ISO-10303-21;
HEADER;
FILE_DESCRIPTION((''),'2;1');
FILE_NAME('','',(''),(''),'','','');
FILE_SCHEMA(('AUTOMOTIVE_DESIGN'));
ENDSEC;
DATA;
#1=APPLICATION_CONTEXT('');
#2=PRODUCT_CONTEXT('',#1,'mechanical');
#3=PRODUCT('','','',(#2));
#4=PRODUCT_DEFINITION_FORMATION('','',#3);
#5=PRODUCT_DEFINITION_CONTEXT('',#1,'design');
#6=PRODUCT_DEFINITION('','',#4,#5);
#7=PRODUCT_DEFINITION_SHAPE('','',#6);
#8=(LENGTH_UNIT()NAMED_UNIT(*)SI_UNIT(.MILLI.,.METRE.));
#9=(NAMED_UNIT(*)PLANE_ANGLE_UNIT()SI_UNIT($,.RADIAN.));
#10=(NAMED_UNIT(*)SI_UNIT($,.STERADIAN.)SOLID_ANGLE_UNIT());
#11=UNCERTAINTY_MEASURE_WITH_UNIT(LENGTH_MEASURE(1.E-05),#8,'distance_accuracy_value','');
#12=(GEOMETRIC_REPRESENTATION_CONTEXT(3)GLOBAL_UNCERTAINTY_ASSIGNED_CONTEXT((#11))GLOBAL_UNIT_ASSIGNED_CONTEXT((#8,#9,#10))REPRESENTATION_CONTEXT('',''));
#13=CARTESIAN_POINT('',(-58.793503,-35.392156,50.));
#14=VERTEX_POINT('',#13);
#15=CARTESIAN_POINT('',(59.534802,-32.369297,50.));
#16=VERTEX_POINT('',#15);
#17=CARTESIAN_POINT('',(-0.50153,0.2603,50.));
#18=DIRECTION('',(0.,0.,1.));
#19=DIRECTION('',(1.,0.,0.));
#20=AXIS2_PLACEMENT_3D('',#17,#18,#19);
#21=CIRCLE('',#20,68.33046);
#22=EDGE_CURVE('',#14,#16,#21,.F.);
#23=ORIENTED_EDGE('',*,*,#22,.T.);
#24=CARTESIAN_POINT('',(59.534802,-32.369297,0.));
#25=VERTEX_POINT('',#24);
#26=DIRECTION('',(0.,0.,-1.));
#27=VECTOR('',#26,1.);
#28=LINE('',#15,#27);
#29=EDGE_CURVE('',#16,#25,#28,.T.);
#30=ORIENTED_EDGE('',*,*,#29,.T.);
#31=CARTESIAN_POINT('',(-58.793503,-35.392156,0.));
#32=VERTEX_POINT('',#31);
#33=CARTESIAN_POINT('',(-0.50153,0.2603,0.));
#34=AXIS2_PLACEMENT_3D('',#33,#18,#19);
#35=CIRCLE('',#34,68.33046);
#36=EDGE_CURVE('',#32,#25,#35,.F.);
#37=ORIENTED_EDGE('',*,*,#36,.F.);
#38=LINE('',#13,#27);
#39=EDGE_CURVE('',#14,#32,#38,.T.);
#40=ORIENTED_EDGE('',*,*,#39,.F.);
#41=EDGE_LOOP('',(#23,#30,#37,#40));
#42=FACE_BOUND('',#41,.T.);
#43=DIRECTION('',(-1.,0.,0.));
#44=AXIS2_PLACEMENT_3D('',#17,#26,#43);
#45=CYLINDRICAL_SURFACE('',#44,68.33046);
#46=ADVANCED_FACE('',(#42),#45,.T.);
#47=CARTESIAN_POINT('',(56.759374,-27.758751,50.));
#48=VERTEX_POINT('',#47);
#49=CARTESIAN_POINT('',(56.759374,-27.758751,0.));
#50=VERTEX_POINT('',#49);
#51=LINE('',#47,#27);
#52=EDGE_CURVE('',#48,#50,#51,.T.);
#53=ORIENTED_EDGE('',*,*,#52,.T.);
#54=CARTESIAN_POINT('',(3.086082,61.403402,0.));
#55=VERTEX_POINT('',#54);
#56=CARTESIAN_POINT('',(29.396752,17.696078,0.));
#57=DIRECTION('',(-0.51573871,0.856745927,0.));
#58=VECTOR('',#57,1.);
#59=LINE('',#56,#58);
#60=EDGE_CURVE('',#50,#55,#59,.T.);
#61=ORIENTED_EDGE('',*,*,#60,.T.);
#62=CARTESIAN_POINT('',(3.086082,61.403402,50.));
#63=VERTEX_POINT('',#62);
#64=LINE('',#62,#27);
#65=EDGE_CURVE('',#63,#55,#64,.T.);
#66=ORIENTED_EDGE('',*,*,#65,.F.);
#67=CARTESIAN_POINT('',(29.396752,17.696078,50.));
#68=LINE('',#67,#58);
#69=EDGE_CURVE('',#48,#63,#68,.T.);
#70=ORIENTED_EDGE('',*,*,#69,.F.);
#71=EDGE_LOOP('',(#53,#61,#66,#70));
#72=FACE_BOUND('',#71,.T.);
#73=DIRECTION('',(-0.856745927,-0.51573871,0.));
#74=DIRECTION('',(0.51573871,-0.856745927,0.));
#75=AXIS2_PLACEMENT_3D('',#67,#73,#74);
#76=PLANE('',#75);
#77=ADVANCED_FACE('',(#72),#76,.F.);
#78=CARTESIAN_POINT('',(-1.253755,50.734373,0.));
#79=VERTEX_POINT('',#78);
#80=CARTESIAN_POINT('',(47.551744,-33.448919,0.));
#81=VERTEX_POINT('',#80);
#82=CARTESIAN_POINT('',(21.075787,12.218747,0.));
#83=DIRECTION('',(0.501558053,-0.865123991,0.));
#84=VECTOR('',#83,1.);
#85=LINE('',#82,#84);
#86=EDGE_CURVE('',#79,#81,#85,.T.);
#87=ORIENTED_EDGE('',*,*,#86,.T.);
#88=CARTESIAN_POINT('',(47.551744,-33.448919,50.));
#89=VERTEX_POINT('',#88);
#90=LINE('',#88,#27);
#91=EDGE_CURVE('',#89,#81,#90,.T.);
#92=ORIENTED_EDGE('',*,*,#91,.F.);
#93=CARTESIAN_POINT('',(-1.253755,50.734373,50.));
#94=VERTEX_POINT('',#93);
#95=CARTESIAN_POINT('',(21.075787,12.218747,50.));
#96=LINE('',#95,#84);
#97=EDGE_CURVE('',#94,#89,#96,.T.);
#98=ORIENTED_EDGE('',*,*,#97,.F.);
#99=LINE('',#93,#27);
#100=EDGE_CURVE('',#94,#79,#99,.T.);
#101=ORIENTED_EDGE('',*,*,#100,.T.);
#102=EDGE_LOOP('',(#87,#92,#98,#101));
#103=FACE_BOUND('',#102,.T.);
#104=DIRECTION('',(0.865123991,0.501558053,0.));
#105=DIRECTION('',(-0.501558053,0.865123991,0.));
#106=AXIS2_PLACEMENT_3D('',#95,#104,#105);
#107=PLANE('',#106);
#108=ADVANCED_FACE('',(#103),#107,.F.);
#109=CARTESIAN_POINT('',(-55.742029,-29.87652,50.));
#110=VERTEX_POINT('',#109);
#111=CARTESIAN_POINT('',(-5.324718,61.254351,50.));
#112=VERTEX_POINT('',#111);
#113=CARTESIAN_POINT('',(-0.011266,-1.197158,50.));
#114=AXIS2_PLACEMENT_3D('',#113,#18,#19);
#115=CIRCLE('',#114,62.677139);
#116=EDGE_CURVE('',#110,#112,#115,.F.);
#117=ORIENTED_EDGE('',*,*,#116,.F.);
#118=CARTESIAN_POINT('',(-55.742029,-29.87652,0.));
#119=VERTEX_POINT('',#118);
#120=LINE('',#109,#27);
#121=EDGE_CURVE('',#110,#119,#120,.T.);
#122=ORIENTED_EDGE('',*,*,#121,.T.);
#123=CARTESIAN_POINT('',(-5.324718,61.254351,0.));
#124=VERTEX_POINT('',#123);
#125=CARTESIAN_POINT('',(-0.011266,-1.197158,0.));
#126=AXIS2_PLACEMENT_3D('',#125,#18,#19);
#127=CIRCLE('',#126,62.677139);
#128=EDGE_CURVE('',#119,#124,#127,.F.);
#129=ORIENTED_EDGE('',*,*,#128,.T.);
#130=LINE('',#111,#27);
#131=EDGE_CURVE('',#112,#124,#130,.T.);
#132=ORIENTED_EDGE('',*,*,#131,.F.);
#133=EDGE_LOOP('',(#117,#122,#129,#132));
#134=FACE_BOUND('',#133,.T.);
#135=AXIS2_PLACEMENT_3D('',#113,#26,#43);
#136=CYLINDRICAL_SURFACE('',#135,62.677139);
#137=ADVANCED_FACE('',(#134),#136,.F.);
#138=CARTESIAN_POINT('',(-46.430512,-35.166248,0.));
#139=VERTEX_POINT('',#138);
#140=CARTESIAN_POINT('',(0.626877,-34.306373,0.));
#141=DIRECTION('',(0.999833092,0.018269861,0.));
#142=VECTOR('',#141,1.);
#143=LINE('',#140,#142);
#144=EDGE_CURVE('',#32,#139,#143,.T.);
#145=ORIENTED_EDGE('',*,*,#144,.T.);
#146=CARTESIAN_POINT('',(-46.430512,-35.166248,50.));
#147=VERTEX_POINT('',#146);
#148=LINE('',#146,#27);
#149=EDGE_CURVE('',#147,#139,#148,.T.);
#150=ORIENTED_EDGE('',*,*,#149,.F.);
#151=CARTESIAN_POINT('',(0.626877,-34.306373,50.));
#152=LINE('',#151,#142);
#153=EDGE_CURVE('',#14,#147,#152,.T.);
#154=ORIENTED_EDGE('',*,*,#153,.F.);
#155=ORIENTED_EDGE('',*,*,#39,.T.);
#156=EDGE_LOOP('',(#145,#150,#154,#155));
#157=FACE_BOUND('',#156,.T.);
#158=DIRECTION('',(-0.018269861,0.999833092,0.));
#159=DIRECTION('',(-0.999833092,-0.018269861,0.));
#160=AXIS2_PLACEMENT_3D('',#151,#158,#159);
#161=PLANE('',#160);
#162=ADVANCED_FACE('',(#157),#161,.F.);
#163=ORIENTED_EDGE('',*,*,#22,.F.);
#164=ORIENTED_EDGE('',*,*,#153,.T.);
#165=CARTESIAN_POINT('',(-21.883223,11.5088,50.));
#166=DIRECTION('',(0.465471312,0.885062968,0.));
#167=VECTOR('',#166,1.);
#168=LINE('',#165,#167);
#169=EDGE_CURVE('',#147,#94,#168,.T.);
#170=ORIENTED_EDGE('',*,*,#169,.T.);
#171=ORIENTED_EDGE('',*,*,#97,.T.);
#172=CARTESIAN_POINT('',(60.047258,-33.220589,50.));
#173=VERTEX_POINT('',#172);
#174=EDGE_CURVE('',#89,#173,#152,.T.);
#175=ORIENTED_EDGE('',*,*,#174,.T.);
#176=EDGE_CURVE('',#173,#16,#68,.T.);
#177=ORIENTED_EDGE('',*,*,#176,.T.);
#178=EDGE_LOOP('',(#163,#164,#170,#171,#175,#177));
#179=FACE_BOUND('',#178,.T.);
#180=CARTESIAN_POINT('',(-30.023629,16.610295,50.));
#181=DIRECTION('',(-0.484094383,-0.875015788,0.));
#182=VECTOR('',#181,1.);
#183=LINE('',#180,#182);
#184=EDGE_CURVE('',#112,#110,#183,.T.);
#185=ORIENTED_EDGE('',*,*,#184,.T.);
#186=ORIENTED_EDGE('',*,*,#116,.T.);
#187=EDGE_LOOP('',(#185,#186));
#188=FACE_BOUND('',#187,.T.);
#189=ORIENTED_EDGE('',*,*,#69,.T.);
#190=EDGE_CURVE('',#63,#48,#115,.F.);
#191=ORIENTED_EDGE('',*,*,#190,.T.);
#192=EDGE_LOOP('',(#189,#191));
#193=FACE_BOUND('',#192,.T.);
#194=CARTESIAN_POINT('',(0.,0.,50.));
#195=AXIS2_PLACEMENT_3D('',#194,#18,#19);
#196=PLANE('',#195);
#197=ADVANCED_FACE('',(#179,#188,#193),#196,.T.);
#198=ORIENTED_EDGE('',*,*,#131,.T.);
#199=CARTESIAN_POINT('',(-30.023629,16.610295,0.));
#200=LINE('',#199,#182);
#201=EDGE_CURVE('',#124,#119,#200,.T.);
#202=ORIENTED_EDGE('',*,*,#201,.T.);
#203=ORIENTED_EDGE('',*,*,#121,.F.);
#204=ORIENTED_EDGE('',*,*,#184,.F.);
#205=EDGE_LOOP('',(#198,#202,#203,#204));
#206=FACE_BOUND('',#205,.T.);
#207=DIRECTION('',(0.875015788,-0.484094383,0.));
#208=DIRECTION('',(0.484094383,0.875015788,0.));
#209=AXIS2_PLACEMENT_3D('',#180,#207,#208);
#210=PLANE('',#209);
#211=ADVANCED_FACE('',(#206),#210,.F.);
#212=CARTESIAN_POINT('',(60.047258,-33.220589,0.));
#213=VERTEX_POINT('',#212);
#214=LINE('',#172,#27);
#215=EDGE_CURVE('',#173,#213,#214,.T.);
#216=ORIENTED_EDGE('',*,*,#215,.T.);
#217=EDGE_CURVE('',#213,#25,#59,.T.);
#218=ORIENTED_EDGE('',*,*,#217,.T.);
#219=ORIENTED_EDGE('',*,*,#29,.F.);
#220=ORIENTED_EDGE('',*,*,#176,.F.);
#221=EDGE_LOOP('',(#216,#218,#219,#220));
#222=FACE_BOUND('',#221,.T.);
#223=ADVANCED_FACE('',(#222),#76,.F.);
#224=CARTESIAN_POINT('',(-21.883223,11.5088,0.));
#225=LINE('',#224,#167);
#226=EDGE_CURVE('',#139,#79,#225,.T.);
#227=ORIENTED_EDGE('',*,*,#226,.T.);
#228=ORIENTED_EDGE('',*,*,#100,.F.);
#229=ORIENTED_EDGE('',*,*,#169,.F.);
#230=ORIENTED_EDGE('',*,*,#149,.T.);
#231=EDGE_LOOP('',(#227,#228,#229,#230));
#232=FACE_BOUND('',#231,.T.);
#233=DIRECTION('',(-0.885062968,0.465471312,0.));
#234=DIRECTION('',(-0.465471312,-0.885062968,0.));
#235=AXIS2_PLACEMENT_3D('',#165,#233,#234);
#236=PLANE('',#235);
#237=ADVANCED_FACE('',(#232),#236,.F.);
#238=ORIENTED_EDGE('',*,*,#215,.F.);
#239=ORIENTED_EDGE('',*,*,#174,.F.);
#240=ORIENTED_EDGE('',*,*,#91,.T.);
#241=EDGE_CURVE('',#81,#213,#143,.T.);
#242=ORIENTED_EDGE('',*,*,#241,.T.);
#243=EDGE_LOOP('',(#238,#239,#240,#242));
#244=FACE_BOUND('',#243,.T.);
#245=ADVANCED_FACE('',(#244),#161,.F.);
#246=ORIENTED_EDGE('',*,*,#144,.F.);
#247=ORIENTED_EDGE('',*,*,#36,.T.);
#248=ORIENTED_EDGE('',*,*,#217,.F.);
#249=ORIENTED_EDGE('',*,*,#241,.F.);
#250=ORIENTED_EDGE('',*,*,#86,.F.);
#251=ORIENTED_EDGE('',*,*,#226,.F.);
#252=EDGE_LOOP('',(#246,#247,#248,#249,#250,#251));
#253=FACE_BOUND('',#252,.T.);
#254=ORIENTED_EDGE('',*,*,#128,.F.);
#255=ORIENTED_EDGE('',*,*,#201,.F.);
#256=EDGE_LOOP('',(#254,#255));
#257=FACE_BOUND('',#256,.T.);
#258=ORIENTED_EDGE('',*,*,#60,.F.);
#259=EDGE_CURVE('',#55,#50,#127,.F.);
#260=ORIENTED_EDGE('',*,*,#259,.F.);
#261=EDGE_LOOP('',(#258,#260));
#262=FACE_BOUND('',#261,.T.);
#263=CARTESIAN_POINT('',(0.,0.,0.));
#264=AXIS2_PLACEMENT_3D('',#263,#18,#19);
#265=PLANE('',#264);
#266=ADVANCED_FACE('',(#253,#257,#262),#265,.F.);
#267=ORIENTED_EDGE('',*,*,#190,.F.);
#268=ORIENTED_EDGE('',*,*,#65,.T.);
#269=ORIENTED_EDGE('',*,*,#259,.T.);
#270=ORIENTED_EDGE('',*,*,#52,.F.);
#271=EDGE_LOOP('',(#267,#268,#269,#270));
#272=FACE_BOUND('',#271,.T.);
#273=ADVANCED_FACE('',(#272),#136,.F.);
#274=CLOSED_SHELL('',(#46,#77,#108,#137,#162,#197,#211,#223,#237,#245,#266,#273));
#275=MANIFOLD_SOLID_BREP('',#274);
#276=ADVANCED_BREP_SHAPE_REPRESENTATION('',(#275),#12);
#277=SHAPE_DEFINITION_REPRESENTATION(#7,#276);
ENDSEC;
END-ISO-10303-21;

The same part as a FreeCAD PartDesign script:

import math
import FreeCAD as App
import Part
import Sketcher

doc = App.newDocument("Part")
body = doc.addObject("PartDesign::Body", "Body")

# Sketch on XY plane
sketch1 = body.newObject("Sketcher::SketchObject", "Sketch")
sketch1.AttachmentSupport = (doc.getObject("XY_Plane"), [""])
sketch1.MapMode = "FlatFace"
sketch1.addGeometry([
    Part.ArcOfCircle(Part.Circle(App.Vector(-0.5, 0.3, 0), App.Vector(0, 0, 1), 68.3), math.radians(-29), math.radians(211)),  # 0
    Part.LineSegment(App.Vector(-58.8, -35.4, 0), App.Vector(-46.4, -35.2, 0)),  # 1
    Part.LineSegment(App.Vector(-46.4, -35.2, 0), App.Vector(-1.3, 50.7, 0)),  # 2
    Part.LineSegment(App.Vector(-1.3, 50.7, 0), App.Vector(47.6, -33.4, 0)),  # 3
    Part.LineSegment(App.Vector(47.6, -33.4, 0), App.Vector(60, -33.2, 0)),  # 4
    Part.LineSegment(App.Vector(60, -33.2, 0), App.Vector(59.5, -32.4, 0)),  # 5
    Part.LineSegment(App.Vector(-5.3, 61.3, 0), App.Vector(-55.7, -29.9, 0)),  # 6
    Part.ArcOfCircle(Part.Circle(App.Vector(0, -1.2, 0), App.Vector(0, 0, 1), 62.7), math.radians(95), math.radians(207)),  # 7
    Part.LineSegment(App.Vector(56.8, -27.8, 0), App.Vector(3.1, 61.4, 0)),  # 8
    Part.ArcOfCircle(Part.Circle(App.Vector(0, -1.2, 0), App.Vector(0, 0, 1), 62.7), math.radians(-25), math.radians(87)),  # 9
], False)
sketch1.addConstraint([
    Sketcher.Constraint("Coincident", 0, 2, 1, 1),
    Sketcher.Constraint("Coincident", 1, 2, 2, 1),
    Sketcher.Constraint("Coincident", 2, 2, 3, 1),
    Sketcher.Constraint("Coincident", 3, 2, 4, 1),
    Sketcher.Constraint("Coincident", 4, 2, 5, 1),
    Sketcher.Constraint("Coincident", 5, 2, 0, 1),
    Sketcher.Constraint("Coincident", 6, 1, 7, 1),
    Sketcher.Constraint("Coincident", 7, 2, 6, 2),
    Sketcher.Constraint("Coincident", 8, 1, 9, 1),
    Sketcher.Constraint("Coincident", 9, 2, 8, 2),
    Sketcher.Constraint("Coincident", 9, 3, 7, 3),
    Sketcher.Constraint("Equal", 7, 9),
    Sketcher.Constraint("Parallel", 1, 4),
    Sketcher.Constraint("Parallel", 5, 8),
    Sketcher.Constraint("Radius", 0, 68.33046),
    Sketcher.Constraint("Radius", 7, 62.677139),
    Sketcher.Constraint("Distance", 4, 12.497599),
    Sketcher.Constraint("DistanceY", -1, 1, 0, 3, 0.2603),
    Sketcher.Constraint("DistanceX", 2, 2, 3, 2, 48.805499),
    Sketcher.Constraint("DistanceY", 1, 2, 6, 1, 96.420599),
    Sketcher.Constraint("DistanceX", 7, 2, 0, 3, 55.240499),
    Sketcher.Constraint("DistanceX", 6, 1, 9, 2, 8.4108),
    Sketcher.Constraint("DistanceX", 0, 3, -1, 1, 0.50153),
    Sketcher.Constraint("DistanceY", 7, 3, -1, 1, 1.197158),
    Sketcher.Constraint("DistanceX", 1, 2, -1, 1, 46.430512),
    Sketcher.Constraint("DistanceY", 1, 2, -1, 1, 35.166248),
    Sketcher.Constraint("DistanceY", 3, 2, -1, 1, 33.448919),
    Sketcher.Constraint("DistanceY", 4, 2, -1, 1, 33.220589),
    Sketcher.Constraint("DistanceX", 6, 1, -1, 1, 5.324718),
    Sketcher.Constraint("DistanceY", 8, 1, -1, 1, 27.758751),
    Sketcher.Constraint("DistanceX", 2, 2, 7, 3, 1.242489),
    Sketcher.Constraint("DistanceY", 7, 3, 2, 2, 51.931531),
])
pad1 = body.newObject("PartDesign::Pad", "Pad")
pad1.Profile = sketch1
pad1.Length = 50

doc.recompute()
